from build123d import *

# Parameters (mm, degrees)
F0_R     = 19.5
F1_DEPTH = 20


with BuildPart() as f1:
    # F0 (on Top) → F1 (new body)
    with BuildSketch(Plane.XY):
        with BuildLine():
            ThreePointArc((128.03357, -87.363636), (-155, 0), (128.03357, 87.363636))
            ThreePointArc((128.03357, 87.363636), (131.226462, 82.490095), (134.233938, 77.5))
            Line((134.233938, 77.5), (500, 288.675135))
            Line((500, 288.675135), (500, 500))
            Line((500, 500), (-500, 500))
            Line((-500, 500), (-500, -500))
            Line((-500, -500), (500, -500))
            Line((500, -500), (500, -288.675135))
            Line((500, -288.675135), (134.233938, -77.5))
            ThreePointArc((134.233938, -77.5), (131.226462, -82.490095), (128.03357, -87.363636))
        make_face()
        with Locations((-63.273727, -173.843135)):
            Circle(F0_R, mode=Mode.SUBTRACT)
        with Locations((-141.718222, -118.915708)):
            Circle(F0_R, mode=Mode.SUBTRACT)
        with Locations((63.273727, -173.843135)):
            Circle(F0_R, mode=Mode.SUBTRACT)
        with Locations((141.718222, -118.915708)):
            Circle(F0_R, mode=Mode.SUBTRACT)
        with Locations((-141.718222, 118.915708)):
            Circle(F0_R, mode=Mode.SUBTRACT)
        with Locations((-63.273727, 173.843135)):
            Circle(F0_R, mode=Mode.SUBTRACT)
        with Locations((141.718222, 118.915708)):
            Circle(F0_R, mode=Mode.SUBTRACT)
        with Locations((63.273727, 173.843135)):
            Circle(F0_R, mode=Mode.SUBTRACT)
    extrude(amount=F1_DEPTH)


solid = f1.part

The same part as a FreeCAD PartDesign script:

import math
import FreeCAD as App
import Part
import Sketcher
from FreeCAD import Vector

doc = App.newDocument("Part")
body = doc.addObject("PartDesign::Body", "Body")

sketch1 = body.newObject("Sketcher::SketchObject", "Sketch")
sketch1.AttachmentSupport = (doc.getObject("XY_Plane"), [""])
sketch1.MapMode = "FlatFace"
sketch1.addGeometry([
    Part.ArcOfCircle(Part.Circle(Vector(0, 0, 0), Vector(0, 0, 1), 155), math.radians(34.307651), math.radians(325.692349)),
    Part.ArcOfCircle(Part.Circle(Vector(0.000296, 0.000178, 0), Vector(0, 0, 1), 154.999655), math.radians(29.999998), math.radians(34.307659)),
    Part.LineSegment(Vector(134.233938, 77.5, 0), Vector(500, 288.675135, 0)),
    Part.LineSegment(Vector(500, 288.675135, 0), Vector(500, 500, 0)),
    Part.LineSegment(Vector(500, 500, 0), Vector(-500, 500, 0)),
    Part.LineSegment(Vector(-500, 500, 0), Vector(-500, -500, 0)),
    Part.LineSegment(Vector(-500, -500, 0), Vector(500, -500, 0)),
    Part.LineSegment(Vector(500, -500, 0), Vector(500, -288.675135, 0)),
    Part.LineSegment(Vector(500, -288.675135, 0), Vector(134.233938, -77.5, 0)),
    Part.ArcOfCircle(Part.Circle(Vector(0.000296, -0.000178, 0), Vector(0, 0, 1), 154.999655), math.radians(-34.307659), math.radians(-29.999998)),
    Part.Circle(Vector(-141.718222, -118.915708, 0), Vector(0, 0, 1), 19.5),
    Part.Circle(Vector(-63.273727, -173.843135, 0), Vector(0, 0, 1), 19.5),
    Part.Circle(Vector(63.273727, -173.843135, 0), Vector(0, 0, 1), 19.5),
    Part.Circle(Vector(141.718222, -118.915708, 0), Vector(0, 0, 1), 19.5),
    Part.Circle(Vector(-141.718222, 118.915708, 0), Vector(0, 0, 1), 19.5),
    Part.Circle(Vector(-63.273727, 173.843135, 0), Vector(0, 0, 1), 19.5),
    Part.Circle(Vector(63.273727, 173.843135, 0), Vector(0, 0, 1), 19.5),
    Part.Circle(Vector(141.718222, 118.915708, 0), Vector(0, 0, 1), 19.5),
], False)
sketch1.addConstraint([
    Sketcher.Constraint("Coincident", 0, 1, 1, 2),
    Sketcher.Constraint("Coincident", 1, 1, 2, 1),
    Sketcher.Constraint("Coincident", 2, 2, 3, 1),
    Sketcher.Constraint("Coincident", 3, 2, 4, 1),
    Sketcher.Constraint("Coincident", 4, 2, 5, 1),
    Sketcher.Constraint("Coincident", 5, 2, 6, 1),
    Sketcher.Constraint("Coincident", 6, 2, 7, 1),
    Sketcher.Constraint("Coincident", 7, 2, 8, 1),
    Sketcher.Constraint("Coincident", 8, 2, 9, 2),
    Sketcher.Constraint("Coincident", 9, 1, 0, 2),
    Sketcher.Constraint("Vertical", 3),
    Sketcher.Constraint("Horizontal", 4),
    Sketcher.Constraint("Vertical", 5),
    Sketcher.Constraint("Horizontal", 6),
    Sketcher.Constraint("Vertical", 7),
    Sketcher.Constraint("Coincident", 0, 3, -1, 1),
    Sketcher.Constraint("Diameter", 10, 39.0),
    Sketcher.Constraint("Diameter", 11, 39.0),
    Sketcher.Constraint("Diameter", 12, 39.0),
    Sketcher.Constraint("Diameter", 13, 39.0),
    Sketcher.Constraint("Diameter", 14, 39.0),
    Sketcher.Constraint("Diameter", 15, 39.0),
    Sketcher.Constraint("Diameter", 16, 39.0),
    Sketcher.Constraint("Diameter", 17, 39.0),
    Sketcher.Constraint("Radius", 0, 155.0),
    Sketcher.Constraint("DistanceX", 4, 2, 4, 1, 1000.0),
    Sketcher.Constraint("DistanceX", 6, 1, 6, 2, 1000.0),
    Sketcher.Constraint("DistanceY", 5, 2, 5, 1, 1000.0),
    Sketcher.Constraint("DistanceX", -1, 1, 2, 2, 500.0),
    Sketcher.Constraint("DistanceY", -1, 1, 3, 2, 500.0),
    Sketcher.Constraint("DistanceY", 8, 2, 1, 1, 155.0),
    Sketcher.Constraint("DistanceY", -1, 1, 1, 1, 77.5),
    Sketcher.Constraint("Radius", 1, 154.999655),
    Sketcher.Constraint("Radius", 9, 154.999655),
    Sketcher.Constraint("DistanceY", 16, 3, 2, 2, 114.832),
    Sketcher.Constraint("DistanceY", 7, 2, 12, 3, 114.832),
    Sketcher.Constraint("DistanceY", 0, 1, 16, 3, 86.479499),
    Sketcher.Constraint("DistanceY", 12, 3, 9, 1, 86.479499),
    Sketcher.Constraint("Distance", 2, 422.350269),
    Sketcher.Constraint("Distance", 8, 422.350269),
    Sketcher.Constraint("DistanceY", 3, 1, 3, 2, 211.324865),
    Sketcher.Constraint("DistanceY", 7, 1, 7, 2, 211.324865),
    Sketcher.Constraint("DistanceX", 10, 3, -1, 1, 141.718222),
    Sketcher.Constraint("DistanceX", -1, 1, 13, 3, 141.718222),
    Sketcher.Constraint("DistanceX", 14, 3, -1, 1, 141.718222),
    Sketcher.Constraint("DistanceX", -1, 1, 17, 3, 141.718222),
    Sketcher.Constraint("DistanceY", 10, 3, 9, 3, 118.91553),
    Sketcher.Constraint("DistanceX", 9, 3, 12, 3, 63.273431),
    Sketcher.Constraint("DistanceY", 13, 3, 9, 3, 118.91553),
    Sketcher.Constraint("DistanceX", 11, 3, 13, 3, 204.991949),
    Sketcher.Constraint("DistanceY", 1, 3, 14, 3, 118.91553),
    Sketcher.Constraint("DistanceX", 1, 3, 16, 3, 63.273431),
    Sketcher.Constraint("DistanceY", 1, 3, 17, 3, 118.91553),
    Sketcher.Constraint("DistanceX", 15, 3, 17, 3, 204.991949),
    Sketcher.Constraint("DistanceY", 11, 3, -1, 1, 173.843135),
    Sketcher.Constraint("DistanceY", -1, 1, 15, 3, 173.843135),
])
pad1 = body.newObject("PartDesign::Pad", "Pad")
pad1.Profile = sketch1
pad1.Length = 20

doc.recompute()
